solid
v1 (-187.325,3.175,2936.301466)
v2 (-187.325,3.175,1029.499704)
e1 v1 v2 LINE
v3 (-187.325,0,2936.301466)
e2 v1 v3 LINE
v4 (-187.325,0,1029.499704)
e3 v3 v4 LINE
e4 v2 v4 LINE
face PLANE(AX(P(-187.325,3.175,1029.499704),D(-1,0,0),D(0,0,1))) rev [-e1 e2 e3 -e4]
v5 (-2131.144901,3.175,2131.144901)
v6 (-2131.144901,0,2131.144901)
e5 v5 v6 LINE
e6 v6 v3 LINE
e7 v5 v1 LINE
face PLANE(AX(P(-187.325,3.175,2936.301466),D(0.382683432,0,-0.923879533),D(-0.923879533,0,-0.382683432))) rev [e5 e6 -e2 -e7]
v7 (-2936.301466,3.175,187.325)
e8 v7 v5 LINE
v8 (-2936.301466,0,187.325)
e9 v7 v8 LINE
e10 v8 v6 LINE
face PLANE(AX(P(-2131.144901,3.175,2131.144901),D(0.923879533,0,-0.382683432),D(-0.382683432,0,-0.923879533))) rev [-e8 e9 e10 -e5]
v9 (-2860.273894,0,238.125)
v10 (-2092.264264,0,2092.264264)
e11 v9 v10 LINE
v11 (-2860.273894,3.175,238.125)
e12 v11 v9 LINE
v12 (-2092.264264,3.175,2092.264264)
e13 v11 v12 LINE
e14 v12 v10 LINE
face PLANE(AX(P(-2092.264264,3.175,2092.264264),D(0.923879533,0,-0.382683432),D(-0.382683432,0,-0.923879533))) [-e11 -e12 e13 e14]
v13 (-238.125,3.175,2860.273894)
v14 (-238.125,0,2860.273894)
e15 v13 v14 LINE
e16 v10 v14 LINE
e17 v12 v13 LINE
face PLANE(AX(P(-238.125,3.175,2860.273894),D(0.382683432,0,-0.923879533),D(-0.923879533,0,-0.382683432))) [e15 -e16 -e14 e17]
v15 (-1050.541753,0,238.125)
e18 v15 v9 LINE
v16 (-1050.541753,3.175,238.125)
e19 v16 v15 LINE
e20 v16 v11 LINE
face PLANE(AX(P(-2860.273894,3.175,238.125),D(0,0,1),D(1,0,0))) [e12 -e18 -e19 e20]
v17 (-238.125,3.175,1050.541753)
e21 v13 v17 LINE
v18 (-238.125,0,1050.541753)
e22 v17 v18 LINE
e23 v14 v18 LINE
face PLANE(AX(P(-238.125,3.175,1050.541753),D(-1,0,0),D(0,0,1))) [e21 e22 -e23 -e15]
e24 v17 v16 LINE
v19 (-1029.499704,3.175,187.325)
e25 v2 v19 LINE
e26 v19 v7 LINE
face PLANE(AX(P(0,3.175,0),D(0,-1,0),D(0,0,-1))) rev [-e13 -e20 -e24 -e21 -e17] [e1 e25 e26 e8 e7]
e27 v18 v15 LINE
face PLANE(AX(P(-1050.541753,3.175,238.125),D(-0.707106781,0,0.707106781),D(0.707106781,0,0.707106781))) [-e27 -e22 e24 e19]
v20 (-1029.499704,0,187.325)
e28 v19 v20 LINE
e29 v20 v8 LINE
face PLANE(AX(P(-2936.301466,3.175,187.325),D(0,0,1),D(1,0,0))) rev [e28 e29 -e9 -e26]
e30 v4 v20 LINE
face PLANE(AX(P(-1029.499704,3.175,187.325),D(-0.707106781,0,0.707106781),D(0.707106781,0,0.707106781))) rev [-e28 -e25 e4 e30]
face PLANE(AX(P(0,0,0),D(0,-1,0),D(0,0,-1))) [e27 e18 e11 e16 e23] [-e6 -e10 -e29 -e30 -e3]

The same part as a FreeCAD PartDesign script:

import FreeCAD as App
import Part
import Sketcher

V = App.Vector
Q = App.Units.Quantity


def add_polygon(sketch, points):
    """Adds a closed chain of lines whose ends are joined by coincident constraints."""
    first, n = sketch.GeometryCount, len(points)
    for a, b in zip(points, points[1:] + points[:1]):
        sketch.addGeometry(Part.LineSegment(App.Vector(*a, 0), App.Vector(*b, 0)), False)
    for i in range(n):
        sketch.addConstraint(Sketcher.Constraint("Coincident", first + i, 2, first + (i + 1) % n, 1))

doc = App.newDocument("Part")
body = doc.addObject("PartDesign::Body", "Body")

# Sketch on XZ plane
sketch1 = body.newObject("Sketcher::SketchObject", "Sketch")
sketch1.AttachmentSupport = (doc.getObject("XZ_Plane"), [""])
sketch1.MapMode = "FlatFace"
add_polygon(sketch1, [(-187, 1029), (-1029, 187), (-2936, 187), (-2131, 2131), (-187, 2936)])  # lines 0-4
add_polygon(sketch1, [(-238, 1051), (-238, 2860), (-2092, 2092), (-2860, 238), (-1051, 238)])  # lines 5-9
sketch1.addConstraint([
    Sketcher.Constraint("Horizontal", 1),
    Sketcher.Constraint("Vertical", 4),
    Sketcher.Constraint("Vertical", 5),
    Sketcher.Constraint("Horizontal", 8),
    Sketcher.Constraint("Parallel", 3, 6),
    Sketcher.Constraint("Parallel", 2, 7),
    Sketcher.Constraint("Parallel", 0, 9),
    Sketcher.Constraint("Equal", 1, 4),
    Sketcher.Constraint("Equal", 8, 5),
    Sketcher.Constraint("Equal", 2, 3),
    Sketcher.Constraint("Equal", 6, 7),
    Sketcher.Constraint("DistanceX", 5, 2, 3, 2, Q("2 in")),
    Sketcher.Constraint("DistanceY", 1, 2, 7, 2, Q("2 in")),
    Sketcher.Constraint("Angle", 2, Q("67.5 deg")),
    Sketcher.Constraint("DistanceY", -1, 1, 0, 2, Q("7.375 in")),
    Sketcher.Constraint("DistanceX", 3, 2, -1, 1, Q("7.375 in")),
    Sketcher.Constraint("Distance", 2, Q("2103.975499 mm")),
    Sketcher.Constraint("DistanceX", 1, 2, 1, 1, Q("1906.801762 mm")),
    Sketcher.Constraint("DistanceX", 8, 1, 8, 2, Q("1809.73214 mm")),
    Sketcher.Constraint("Distance", 9, Q("1148.930791 mm")),
])
pad1 = body.newObject("PartDesign::Pad", "Pad")
pad1.Profile = sketch1
pad1.Length = Q("0.125 in")
pad1.Reversed = True

doc.recompute()
